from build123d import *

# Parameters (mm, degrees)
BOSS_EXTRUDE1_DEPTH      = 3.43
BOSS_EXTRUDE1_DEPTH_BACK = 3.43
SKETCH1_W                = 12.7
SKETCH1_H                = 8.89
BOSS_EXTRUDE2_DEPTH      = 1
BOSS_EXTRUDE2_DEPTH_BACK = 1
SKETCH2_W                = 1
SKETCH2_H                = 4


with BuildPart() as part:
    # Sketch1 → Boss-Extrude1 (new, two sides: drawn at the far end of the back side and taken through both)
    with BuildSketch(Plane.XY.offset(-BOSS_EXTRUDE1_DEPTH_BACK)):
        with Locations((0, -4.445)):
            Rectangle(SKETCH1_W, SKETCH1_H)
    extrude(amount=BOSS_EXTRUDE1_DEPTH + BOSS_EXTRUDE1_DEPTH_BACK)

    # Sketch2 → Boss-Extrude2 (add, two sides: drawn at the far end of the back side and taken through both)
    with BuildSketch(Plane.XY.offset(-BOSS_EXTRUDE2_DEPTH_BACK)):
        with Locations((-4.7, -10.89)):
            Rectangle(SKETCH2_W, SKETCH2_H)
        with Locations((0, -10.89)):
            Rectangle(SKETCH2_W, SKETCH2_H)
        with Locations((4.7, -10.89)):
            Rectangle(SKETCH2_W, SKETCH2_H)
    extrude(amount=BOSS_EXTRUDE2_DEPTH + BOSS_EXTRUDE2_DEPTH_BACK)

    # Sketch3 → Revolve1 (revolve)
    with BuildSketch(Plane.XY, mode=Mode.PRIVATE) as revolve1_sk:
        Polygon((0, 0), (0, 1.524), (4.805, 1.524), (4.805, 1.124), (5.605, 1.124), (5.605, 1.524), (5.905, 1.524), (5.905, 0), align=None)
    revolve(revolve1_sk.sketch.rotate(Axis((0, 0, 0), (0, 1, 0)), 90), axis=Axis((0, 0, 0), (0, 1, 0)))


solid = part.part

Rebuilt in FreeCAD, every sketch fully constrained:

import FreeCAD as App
import Part
import Sketcher
from FreeCAD import Vector


def add_polygon(sketch, points):
    """Adds a closed chain of lines whose ends are joined by coincident constraints."""
    first, n = sketch.GeometryCount, len(points)
    for a, b in zip(points, points[1:] + points[:1]):
        sketch.addGeometry(Part.LineSegment(App.Vector(*a, 0), App.Vector(*b, 0)), False)
    for i in range(n):
        sketch.addConstraint(Sketcher.Constraint("Coincident", first + i, 2, first + (i + 1) % n, 1))

doc = App.newDocument("Part")
body = doc.addObject("PartDesign::Body", "Body")

# Sketch on XY plane
sketch1 = body.newObject("Sketcher::SketchObject", "Sketch")
sketch1.AttachmentSupport = (doc.getObject("XY_Plane"), [""])
sketch1.MapMode = "FlatFace"
add_polygon(sketch1, [(-6, 0), (-6, -9), (6, -9), (6, 0)])  # lines 0-3
sketch1.addConstraint([
    Sketcher.Constraint("Vertical", 0),
    Sketcher.Constraint("Horizontal", 1),
    Sketcher.Constraint("Vertical", 2),
    Sketcher.Constraint("Horizontal", 3),
    Sketcher.Constraint("Symmetric", 2, 2, 3, 2, -1, 1),
    Sketcher.Constraint("DistanceX", 1, 1, 1, 2, 12.7),
    Sketcher.Constraint("DistanceY", 0, 2, 0, 1, 8.89),
])
pad1 = body.newObject("PartDesign::Pad", "Pad")
pad1.Profile = sketch1
pad1.Type = "TwoLengths"
pad1.Length = 3.43
pad1.Length2 = 3.43

# Sketch on XY plane
sketch2 = body.newObject("Sketcher::SketchObject", "Sketch001")
sketch2.AttachmentSupport = (doc.getObject("XY_Plane"), [""])
sketch2.MapMode = "FlatFace"
add_polygon(sketch2, [(-5.2, -8.9), (-5.2, -12.9), (-4.2, -12.9), (-4.2, -8.9)])  # lines 0-3
add_polygon(sketch2, [(-0.5, -8.9), (-0.5, -12.9), (0.5, -12.9), (0.5, -8.9)])  # lines 4-7
add_polygon(sketch2, [(4.2, -8.9), (4.2, -12.9), (5.2, -12.9), (5.2, -8.9)])  # lines 8-11
sketch2.addConstraint([
    Sketcher.Constraint("Vertical", 0),
    Sketcher.Constraint("Horizontal", 1),
    Sketcher.Constraint("Vertical", 2),
    Sketcher.Constraint("Horizontal", 3),
    Sketcher.Constraint("Vertical", 4),
    Sketcher.Constraint("Horizontal", 5),
    Sketcher.Constraint("Vertical", 6),
    Sketcher.Constraint("Horizontal", 7),
    Sketcher.Constraint("Vertical", 8),
    Sketcher.Constraint("Horizontal", 9),
    Sketcher.Constraint("Vertical", 10),
    Sketcher.Constraint("Horizontal", 11),
    Sketcher.Constraint("Symmetric", 1, 2, 8, 2, -2),
    Sketcher.Constraint("Symmetric", 3, 2, 10, 2, -2),
    Sketcher.Constraint("Horizontal", 1, 2, 4, 2),
    Sketcher.Constraint("Horizontal", 3, 2, 6, 2),
    Sketcher.Constraint("Equal", 3, 5),
    Sketcher.Constraint("DistanceX", 1, 1, 1, 2, 1.0),
    Sketcher.Constraint("DistanceY", 0, 2, 0, 1, 4.0),
    Sketcher.Constraint("DistanceX", 0, 2, -1, 1, 5.2),
    Sketcher.Constraint("DistanceX", 4, 2, -1, 1, 0.5),
    Sketcher.Constraint("DistanceY", 0, 2, -1, 1, 12.89),
])
pad2 = body.newObject("PartDesign::Pad", "Pad001")
pad2.Profile = sketch2
pad2.Type = "TwoLengths"
pad2.Length = 1
pad2.Length2 = 1

# Sketch on XY plane
sketch3 = body.newObject("Sketcher::SketchObject", "Sketch002")
sketch3.AttachmentSupport = (doc.getObject("XY_Plane"), [""])
sketch3.MapMode = "FlatFace"
add_polygon(sketch3, [(0, 1.52), (0, 0), (5.91, 0), (5.91, 1.52), (5.61, 1.52), (5.61, 1.12), (4.8, 1.12), (4.8, 1.52)])  # lines 0-7
sketch3.addConstraint([
    Sketcher.Constraint("Vertical", 0),
    Sketcher.Constraint("Horizontal", 1),
    Sketcher.Constraint("Vertical", 2),
    Sketcher.Constraint("Horizontal", 3),
    Sketcher.Constraint("Vertical", 4),
    Sketcher.Constraint("Horizontal", 5),
    Sketcher.Constraint("Vertical", 6),
    Sketcher.Constraint("Horizontal", 7),
    Sketcher.Constraint("Coincident", 0, 2, -1, 1),
    Sketcher.Constraint("Horizontal", 3, 2, 6, 2),
    Sketcher.Constraint("DistanceX", 3, 2, 3, 1, 0.3),
    Sketcher.Constraint("DistanceX", 5, 2, 5, 1, 0.8),
    Sketcher.Constraint("DistanceY", 4, 2, 4, 1, 0.4),
    Sketcher.Constraint("DistanceX", 1, 1, 1, 2, 5.905),
    Sketcher.Constraint("DistanceY", 0, 2, 0, 1, 1.524),
])
revolution = body.newObject("PartDesign::Revolution", "Revolution")
revolution.Profile = sketch3
revolution.ReferenceAxis = (sketch3, ["V_Axis"])
revolution.Angle = 360

doc.recompute()
